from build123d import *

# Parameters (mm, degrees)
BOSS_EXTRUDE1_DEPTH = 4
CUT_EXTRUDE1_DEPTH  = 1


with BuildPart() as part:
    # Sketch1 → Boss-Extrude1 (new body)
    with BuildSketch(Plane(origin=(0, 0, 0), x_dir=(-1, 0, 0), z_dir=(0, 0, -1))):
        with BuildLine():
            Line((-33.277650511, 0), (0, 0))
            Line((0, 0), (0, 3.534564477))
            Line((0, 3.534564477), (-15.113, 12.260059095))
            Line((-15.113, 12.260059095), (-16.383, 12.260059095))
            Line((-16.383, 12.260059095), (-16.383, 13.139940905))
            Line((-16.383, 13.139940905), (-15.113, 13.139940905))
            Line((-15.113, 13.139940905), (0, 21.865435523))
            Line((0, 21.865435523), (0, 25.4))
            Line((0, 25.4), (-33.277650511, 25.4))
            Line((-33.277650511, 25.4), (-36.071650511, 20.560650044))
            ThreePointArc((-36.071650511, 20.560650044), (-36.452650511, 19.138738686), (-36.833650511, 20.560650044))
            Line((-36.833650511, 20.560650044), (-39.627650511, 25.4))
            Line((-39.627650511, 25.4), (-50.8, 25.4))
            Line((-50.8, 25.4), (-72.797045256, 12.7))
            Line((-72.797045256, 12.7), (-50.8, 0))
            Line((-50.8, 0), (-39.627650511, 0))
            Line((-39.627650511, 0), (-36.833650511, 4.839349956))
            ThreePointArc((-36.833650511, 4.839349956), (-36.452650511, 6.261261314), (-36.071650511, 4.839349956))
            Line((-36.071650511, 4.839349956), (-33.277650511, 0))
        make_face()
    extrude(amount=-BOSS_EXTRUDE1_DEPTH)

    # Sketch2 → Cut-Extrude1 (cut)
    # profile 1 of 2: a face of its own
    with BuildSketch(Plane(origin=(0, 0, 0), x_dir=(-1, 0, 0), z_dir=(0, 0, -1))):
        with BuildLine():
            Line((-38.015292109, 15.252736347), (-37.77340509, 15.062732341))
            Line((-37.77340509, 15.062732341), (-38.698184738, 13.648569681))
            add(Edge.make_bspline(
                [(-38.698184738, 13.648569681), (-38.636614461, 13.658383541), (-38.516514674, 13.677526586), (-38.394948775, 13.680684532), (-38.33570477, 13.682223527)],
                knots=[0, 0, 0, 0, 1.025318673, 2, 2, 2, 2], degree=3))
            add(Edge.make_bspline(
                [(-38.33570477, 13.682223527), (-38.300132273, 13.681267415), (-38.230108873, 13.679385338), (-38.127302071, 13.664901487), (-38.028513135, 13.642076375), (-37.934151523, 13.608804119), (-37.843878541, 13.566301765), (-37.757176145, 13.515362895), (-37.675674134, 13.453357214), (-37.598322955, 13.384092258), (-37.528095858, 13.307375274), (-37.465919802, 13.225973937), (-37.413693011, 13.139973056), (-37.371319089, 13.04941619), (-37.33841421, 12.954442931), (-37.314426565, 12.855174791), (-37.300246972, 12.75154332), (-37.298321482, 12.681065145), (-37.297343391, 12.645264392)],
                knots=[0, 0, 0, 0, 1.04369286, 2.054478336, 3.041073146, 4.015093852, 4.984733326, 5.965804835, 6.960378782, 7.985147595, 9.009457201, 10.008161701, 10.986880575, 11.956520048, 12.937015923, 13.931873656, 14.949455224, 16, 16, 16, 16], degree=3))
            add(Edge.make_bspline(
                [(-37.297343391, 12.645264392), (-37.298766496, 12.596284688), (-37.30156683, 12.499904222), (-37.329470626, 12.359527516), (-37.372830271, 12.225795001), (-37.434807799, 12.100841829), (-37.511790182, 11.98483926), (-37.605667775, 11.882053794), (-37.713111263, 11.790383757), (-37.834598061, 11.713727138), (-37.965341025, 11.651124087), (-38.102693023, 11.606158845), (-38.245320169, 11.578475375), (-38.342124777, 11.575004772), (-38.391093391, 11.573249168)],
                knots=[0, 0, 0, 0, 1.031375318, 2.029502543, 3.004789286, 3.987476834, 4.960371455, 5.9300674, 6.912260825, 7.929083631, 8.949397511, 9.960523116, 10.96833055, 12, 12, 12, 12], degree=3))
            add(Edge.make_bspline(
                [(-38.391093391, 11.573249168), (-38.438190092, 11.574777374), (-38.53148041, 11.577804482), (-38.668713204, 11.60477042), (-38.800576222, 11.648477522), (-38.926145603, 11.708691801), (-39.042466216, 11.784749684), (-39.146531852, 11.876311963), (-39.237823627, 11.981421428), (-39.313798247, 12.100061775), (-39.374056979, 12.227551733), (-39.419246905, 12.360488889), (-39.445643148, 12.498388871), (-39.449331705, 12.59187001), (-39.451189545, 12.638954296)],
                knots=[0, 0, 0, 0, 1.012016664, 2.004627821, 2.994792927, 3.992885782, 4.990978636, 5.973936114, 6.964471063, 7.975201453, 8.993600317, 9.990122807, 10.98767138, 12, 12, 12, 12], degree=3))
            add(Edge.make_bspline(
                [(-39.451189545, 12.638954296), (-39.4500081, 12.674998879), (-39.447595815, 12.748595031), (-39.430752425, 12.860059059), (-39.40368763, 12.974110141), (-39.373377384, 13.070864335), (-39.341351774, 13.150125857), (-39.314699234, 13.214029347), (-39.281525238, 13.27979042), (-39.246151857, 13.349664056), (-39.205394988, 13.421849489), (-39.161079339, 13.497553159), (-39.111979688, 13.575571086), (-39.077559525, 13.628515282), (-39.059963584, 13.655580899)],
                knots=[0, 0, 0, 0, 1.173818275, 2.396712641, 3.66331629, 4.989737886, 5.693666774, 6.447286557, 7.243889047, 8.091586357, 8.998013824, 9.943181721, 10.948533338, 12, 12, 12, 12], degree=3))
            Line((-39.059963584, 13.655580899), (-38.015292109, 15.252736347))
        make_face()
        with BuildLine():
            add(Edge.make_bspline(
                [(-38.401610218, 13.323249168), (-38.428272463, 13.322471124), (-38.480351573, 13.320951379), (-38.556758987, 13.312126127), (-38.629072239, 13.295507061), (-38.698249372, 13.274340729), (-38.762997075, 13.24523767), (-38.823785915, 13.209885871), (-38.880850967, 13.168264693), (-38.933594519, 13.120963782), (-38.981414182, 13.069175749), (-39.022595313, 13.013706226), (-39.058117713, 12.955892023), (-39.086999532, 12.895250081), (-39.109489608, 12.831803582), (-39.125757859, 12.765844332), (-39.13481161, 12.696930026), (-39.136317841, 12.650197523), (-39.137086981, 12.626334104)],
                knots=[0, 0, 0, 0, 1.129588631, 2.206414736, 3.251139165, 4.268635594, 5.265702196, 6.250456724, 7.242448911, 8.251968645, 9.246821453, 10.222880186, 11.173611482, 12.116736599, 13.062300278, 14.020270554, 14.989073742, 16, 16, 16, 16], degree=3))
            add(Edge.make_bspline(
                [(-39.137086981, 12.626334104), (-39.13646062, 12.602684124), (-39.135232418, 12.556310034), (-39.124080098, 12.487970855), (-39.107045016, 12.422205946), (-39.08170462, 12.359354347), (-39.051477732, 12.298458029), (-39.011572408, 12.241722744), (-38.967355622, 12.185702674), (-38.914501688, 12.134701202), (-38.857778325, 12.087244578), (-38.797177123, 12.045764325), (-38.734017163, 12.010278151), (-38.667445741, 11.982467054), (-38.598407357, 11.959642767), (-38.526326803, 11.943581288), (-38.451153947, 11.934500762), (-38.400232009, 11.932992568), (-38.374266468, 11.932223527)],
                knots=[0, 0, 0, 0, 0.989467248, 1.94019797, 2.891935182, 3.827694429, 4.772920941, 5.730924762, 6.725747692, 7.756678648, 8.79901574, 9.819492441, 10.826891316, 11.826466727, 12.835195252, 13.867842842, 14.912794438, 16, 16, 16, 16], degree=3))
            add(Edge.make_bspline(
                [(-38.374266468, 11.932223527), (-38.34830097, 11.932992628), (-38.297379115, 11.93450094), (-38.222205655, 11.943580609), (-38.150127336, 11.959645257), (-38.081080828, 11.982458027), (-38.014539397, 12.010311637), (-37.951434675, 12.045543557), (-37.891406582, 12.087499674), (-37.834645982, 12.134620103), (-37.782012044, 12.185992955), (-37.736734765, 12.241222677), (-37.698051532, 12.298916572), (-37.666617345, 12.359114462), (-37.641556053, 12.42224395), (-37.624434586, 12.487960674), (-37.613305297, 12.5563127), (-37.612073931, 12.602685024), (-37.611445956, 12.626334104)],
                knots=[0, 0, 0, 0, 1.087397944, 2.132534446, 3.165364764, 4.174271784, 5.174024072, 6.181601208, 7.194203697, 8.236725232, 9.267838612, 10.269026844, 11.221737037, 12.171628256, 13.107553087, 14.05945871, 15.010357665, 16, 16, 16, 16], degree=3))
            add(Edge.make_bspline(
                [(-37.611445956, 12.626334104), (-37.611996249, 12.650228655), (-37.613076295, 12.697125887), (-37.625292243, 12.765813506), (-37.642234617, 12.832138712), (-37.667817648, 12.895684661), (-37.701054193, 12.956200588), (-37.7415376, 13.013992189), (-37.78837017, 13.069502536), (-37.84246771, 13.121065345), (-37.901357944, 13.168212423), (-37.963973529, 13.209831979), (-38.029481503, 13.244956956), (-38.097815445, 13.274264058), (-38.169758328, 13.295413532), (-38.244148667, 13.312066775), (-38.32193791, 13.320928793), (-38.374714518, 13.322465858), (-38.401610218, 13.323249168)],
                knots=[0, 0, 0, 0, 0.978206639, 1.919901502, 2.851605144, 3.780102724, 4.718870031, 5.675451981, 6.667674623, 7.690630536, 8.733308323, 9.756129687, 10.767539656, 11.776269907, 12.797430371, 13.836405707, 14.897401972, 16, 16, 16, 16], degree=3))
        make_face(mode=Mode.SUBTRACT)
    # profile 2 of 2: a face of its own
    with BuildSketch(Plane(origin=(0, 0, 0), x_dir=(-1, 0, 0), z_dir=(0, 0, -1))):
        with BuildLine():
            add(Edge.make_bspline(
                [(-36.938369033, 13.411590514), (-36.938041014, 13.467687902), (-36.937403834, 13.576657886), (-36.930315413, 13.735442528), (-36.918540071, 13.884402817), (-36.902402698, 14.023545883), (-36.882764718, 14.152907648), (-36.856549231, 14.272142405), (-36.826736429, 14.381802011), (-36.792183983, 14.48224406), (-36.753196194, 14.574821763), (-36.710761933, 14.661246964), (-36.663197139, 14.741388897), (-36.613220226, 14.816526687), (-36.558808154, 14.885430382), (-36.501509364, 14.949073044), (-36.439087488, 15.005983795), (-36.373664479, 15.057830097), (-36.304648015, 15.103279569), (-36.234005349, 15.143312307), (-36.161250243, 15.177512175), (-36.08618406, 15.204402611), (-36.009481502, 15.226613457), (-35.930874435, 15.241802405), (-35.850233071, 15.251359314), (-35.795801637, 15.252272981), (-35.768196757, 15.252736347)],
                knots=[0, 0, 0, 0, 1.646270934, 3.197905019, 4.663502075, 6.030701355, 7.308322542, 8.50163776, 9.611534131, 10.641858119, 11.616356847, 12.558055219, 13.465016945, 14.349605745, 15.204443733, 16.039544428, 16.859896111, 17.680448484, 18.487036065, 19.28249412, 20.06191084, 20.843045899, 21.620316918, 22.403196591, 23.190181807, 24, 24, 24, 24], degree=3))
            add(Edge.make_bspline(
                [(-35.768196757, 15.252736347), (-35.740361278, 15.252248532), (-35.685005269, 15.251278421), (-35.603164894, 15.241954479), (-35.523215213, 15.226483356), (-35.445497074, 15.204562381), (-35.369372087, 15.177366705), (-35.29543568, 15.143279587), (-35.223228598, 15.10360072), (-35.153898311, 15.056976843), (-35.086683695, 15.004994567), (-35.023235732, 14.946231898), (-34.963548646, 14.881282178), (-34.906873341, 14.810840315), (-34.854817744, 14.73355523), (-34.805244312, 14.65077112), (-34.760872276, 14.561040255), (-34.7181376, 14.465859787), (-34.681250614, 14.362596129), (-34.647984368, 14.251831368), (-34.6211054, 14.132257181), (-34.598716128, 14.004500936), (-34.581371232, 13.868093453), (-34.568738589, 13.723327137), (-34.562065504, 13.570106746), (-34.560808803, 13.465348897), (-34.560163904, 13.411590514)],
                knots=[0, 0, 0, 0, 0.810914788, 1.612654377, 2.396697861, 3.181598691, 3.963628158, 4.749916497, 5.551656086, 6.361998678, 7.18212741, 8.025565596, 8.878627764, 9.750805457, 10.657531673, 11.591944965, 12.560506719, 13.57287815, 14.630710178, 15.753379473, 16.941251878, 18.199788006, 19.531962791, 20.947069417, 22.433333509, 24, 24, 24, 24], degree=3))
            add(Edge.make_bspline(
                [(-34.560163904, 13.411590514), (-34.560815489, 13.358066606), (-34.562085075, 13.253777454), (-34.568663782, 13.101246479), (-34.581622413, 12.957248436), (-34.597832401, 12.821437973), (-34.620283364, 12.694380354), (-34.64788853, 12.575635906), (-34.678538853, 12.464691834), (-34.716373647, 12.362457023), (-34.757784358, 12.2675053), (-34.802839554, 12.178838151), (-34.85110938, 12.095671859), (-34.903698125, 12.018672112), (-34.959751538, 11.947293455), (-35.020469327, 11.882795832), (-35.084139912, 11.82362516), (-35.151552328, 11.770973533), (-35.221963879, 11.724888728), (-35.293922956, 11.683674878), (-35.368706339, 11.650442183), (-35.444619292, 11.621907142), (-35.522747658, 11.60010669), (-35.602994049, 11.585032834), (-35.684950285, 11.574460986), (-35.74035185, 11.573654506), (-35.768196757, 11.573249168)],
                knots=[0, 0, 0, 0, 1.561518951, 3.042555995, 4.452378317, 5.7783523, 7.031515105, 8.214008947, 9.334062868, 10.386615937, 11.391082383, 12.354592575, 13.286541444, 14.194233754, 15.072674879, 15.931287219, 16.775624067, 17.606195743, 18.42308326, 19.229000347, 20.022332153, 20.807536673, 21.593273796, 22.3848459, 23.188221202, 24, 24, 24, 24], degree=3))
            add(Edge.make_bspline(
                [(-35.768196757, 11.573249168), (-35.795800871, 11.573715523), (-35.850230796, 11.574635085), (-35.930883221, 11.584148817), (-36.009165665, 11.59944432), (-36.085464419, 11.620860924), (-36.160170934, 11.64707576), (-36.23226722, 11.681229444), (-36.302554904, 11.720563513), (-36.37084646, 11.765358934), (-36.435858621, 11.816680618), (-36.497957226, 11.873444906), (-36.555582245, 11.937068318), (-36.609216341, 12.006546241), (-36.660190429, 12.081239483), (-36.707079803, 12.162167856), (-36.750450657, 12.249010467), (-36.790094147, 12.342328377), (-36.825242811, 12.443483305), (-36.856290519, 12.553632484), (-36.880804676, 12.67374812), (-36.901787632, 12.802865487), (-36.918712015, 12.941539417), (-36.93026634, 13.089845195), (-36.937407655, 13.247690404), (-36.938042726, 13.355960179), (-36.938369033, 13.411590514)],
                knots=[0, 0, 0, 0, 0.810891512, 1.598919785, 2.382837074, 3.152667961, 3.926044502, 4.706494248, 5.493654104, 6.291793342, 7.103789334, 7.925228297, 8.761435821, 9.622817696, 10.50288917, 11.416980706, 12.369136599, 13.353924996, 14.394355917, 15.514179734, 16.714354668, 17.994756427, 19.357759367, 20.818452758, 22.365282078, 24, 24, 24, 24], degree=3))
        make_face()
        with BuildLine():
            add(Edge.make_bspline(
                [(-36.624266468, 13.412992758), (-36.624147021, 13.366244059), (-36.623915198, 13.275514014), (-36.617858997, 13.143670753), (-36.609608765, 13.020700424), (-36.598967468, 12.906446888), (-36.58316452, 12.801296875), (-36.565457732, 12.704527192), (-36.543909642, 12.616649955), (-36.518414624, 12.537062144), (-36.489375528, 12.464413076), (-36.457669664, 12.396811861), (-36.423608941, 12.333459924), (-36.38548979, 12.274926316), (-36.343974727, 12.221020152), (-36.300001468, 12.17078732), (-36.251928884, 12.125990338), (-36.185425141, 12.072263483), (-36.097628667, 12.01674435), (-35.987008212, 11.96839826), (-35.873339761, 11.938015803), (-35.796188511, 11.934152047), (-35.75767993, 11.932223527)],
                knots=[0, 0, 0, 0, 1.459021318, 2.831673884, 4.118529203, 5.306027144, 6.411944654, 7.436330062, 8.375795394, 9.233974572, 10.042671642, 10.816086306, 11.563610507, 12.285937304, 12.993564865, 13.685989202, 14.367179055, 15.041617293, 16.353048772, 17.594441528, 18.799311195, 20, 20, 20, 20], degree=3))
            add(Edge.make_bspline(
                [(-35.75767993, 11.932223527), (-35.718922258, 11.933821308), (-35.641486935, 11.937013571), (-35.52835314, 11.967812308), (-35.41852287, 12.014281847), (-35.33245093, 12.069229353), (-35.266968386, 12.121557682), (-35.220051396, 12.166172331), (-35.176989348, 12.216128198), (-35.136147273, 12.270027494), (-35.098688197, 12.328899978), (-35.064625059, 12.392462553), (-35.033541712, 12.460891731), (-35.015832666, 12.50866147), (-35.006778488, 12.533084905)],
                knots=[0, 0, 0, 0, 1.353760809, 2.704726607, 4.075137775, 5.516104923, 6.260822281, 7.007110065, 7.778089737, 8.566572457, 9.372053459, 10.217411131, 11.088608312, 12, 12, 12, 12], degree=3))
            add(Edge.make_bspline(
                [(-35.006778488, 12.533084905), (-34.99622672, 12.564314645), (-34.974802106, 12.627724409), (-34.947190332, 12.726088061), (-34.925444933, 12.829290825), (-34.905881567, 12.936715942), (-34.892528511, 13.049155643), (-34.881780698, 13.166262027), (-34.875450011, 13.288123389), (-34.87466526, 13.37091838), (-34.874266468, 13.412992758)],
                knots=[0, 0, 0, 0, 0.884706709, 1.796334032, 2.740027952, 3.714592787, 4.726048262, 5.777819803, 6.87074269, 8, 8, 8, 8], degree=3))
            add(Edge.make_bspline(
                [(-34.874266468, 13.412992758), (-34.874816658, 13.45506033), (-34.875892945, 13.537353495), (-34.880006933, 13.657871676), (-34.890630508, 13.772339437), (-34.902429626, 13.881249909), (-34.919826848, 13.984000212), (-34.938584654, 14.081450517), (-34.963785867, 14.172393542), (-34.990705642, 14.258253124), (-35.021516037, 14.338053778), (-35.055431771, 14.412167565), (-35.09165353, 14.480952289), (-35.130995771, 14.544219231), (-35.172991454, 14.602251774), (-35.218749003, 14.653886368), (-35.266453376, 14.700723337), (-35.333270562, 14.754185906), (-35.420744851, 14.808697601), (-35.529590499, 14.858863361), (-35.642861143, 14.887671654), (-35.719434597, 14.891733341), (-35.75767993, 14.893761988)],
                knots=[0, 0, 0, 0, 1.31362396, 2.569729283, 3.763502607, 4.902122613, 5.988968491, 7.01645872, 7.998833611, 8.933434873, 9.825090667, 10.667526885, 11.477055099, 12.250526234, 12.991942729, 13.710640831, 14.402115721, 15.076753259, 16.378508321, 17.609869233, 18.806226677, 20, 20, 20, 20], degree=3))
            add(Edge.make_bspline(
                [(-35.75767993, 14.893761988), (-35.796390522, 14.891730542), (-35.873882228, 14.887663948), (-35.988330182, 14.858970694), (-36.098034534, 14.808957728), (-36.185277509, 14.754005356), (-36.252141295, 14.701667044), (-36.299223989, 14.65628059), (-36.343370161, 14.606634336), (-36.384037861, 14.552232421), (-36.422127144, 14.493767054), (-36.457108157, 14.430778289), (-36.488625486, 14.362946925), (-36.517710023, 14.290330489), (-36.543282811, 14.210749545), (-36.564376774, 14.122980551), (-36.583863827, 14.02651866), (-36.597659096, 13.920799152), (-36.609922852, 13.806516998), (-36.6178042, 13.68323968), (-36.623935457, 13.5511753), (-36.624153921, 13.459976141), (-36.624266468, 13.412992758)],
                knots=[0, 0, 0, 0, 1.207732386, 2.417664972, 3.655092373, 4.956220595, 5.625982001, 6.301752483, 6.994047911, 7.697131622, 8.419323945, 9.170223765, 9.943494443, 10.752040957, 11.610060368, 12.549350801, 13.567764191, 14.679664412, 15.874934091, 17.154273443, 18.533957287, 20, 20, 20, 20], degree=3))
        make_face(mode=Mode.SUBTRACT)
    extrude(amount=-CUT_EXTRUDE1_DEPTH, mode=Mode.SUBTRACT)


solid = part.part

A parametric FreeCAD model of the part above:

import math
import FreeCAD as App
import Part
import Sketcher
Q = App.Units.Quantity

doc = App.newDocument("Part")
body = doc.addObject("PartDesign::Body", "Body")

# Sketch on XY plane
sketch1 = doc.addObject("Sketcher::SketchObject", "Sketch")
body.addObject(sketch1)
sketch1.AttachmentSupport = (doc.XY_Plane, [""])
sketch1.MapMode = "FlatFace"
sketch1.addGeometry(Part.LineSegment(App.Vector(33.3, 0, 0), App.Vector(0, 0, 0)), False)
sketch1.addGeometry(Part.LineSegment(App.Vector(0, 0, 0), App.Vector(0, 3.5, 0)), False)
sketch1.addGeometry(Part.LineSegment(App.Vector(0, 3.5, 0), App.Vector(15.1, 12.3, 0)), False)
sketch1.addGeometry(Part.LineSegment(App.Vector(15.1, 12.3, 0), App.Vector(16.4, 12.3, 0)), False)
sketch1.addGeometry(Part.LineSegment(App.Vector(16.4, 12.3, 0), App.Vector(16.4, 13.1, 0)), False)
sketch1.addGeometry(Part.LineSegment(App.Vector(16.4, 13.1, 0), App.Vector(15.1, 13.1, 0)), False)
sketch1.addGeometry(Part.LineSegment(App.Vector(15.1, 13.1, 0), App.Vector(0, 21.9, 0)), False)
sketch1.addGeometry(Part.LineSegment(App.Vector(0, 21.9, 0), App.Vector(0, 25.4, 0)), False)
sketch1.addGeometry(Part.LineSegment(App.Vector(0, 25.4, 0), App.Vector(33.3, 25.4, 0)), False)
sketch1.addGeometry(Part.LineSegment(App.Vector(33.3, 25.4, 0), App.Vector(36.1, 20.6, 0)), False)
sketch1.addGeometry(Part.ArcOfCircle(Part.Circle(App.Vector(36.5, 19.9, 0), App.Vector(0, 0, 1), 0.8), math.radians(120), math.radians(420)), False)
sketch1.addGeometry(Part.LineSegment(App.Vector(36.8, 20.6, 0), App.Vector(39.6, 25.4, 0)), False)
sketch1.addGeometry(Part.LineSegment(App.Vector(39.6, 25.4, 0), App.Vector(50.8, 25.4, 0)), False)
sketch1.addGeometry(Part.LineSegment(App.Vector(50.8, 25.4, 0), App.Vector(72.8, 12.7, 0)), False)
sketch1.addGeometry(Part.LineSegment(App.Vector(72.8, 12.7, 0), App.Vector(50.8, 0, 0)), False)
sketch1.addGeometry(Part.LineSegment(App.Vector(50.8, 0, 0), App.Vector(39.6, 0, 0)), False)
sketch1.addGeometry(Part.LineSegment(App.Vector(39.6, 0, 0), App.Vector(36.8, 4.8, 0)), False)
sketch1.addGeometry(Part.ArcOfCircle(Part.Circle(App.Vector(36.5, 5.5, 0), App.Vector(0, 0, 1), 0.8), math.radians(-60), math.radians(240)), False)
sketch1.addGeometry(Part.LineSegment(App.Vector(36.1, 4.8, 0), App.Vector(33.3, 0, 0)), False)
sketch1.addConstraint(Sketcher.Constraint("Coincident", 0, 2, 1, 1))
sketch1.addConstraint(Sketcher.Constraint("Coincident", 1, 2, 2, 1))
sketch1.addConstraint(Sketcher.Constraint("Coincident", 2, 2, 3, 1))
sketch1.addConstraint(Sketcher.Constraint("Coincident", 3, 2, 4, 1))
sketch1.addConstraint(Sketcher.Constraint("Coincident", 4, 2, 5, 1))
sketch1.addConstraint(Sketcher.Constraint("Coincident", 5, 2, 6, 1))
sketch1.addConstraint(Sketcher.Constraint("Coincident", 6, 2, 7, 1))
sketch1.addConstraint(Sketcher.Constraint("Coincident", 7, 2, 8, 1))
sketch1.addConstraint(Sketcher.Constraint("Coincident", 8, 2, 9, 1))
sketch1.addConstraint(Sketcher.Constraint("Coincident", 9, 2, 10, 1))
sketch1.addConstraint(Sketcher.Constraint("Coincident", 10, 2, 11, 1))
sketch1.addConstraint(Sketcher.Constraint("Coincident", 11, 2, 12, 1))
sketch1.addConstraint(Sketcher.Constraint("Coincident", 12, 2, 13, 1))
sketch1.addConstraint(Sketcher.Constraint("Coincident", 13, 2, 14, 1))
sketch1.addConstraint(Sketcher.Constraint("Coincident", 14, 2, 15, 1))
sketch1.addConstraint(Sketcher.Constraint("Coincident", 15, 2, 16, 1))
sketch1.addConstraint(Sketcher.Constraint("Coincident", 16, 2, 17, 1))
sketch1.addConstraint(Sketcher.Constraint("Coincident", 17, 2, 18, 1))
sketch1.addConstraint(Sketcher.Constraint("Coincident", 18, 2, 0, 1))
sketch1.addConstraint(Sketcher.Constraint("Horizontal", 0))
sketch1.addConstraint(Sketcher.Constraint("Vertical", 1))
sketch1.addConstraint(Sketcher.Constraint("Horizontal", 3))
sketch1.addConstraint(Sketcher.Constraint("Vertical", 4))
sketch1.addConstraint(Sketcher.Constraint("Horizontal", 5))
sketch1.addConstraint(Sketcher.Constraint("Vertical", 7))
sketch1.addConstraint(Sketcher.Constraint("Horizontal", 8))
sketch1.addConstraint(Sketcher.Constraint("Horizontal", 12))
sketch1.addConstraint(Sketcher.Constraint("Horizontal", 15))
sketch1.addConstraint(Sketcher.Constraint("Coincident", 0, 2, -1, 1))
sketch1.addConstraint(Sketcher.Constraint("Equal", 10, 17))
sketch1.addConstraint(Sketcher.Constraint("PointOnObject", 6, 2, -2))
sketch1.addConstraint(Sketcher.Constraint("PointOnObject", 14, 2, -1))
sketch1.addConstraint(Sketcher.Constraint("Perpendicular", 2, 9))
sketch1.addConstraint(Sketcher.Constraint("Perpendicular", 6, 11))
sketch1.addConstraint(Sketcher.Constraint("Perpendicular", 11, 13))
sketch1.addConstraint(Sketcher.Constraint("Perpendicular", 9, 14))
sketch1.addConstraint(Sketcher.Constraint("Perpendicular", 14, 16))
sketch1.addConstraint(Sketcher.Constraint("Perpendicular", 13, 18))
sketch1.addConstraint(Sketcher.Constraint("Horizontal", 9, 2, 10, 2))
sketch1.addConstraint(Sketcher.Constraint("Horizontal", 8, 2, 11, 2))
sketch1.addConstraint(Sketcher.Constraint("Horizontal", 16, 2, 17, 2))
sketch1.addConstraint(Sketcher.Constraint("Vertical", 10, 3, 17, 3))
sketch1.addConstraint(Sketcher.Constraint("Vertical", 2, 2, 5, 2))
sketch1.addConstraint(Sketcher.Constraint("Vertical", 12, 2, 14, 2))
sketch1.addConstraint(Sketcher.Constraint("Vertical", 11, 2, 15, 2))
sketch1.addConstraint(Sketcher.Constraint("Vertical", 10, 2, 16, 2))
sketch1.addConstraint(Sketcher.Constraint("Vertical", 8, 2, 18, 2))
sketch1.addConstraint(Sketcher.Constraint("Equal", 1, 7))
sketch1.addConstraint(Sketcher.Constraint("Radius", 10, Q("0.03 in")))
sketch1.addConstraint(Sketcher.Constraint("Distance", 13, Q("1 in")))
sketch1.addConstraint(Sketcher.Constraint("DistanceY", -1, 1, 7, 2, Q("1 in")))
sketch1.addConstraint(Sketcher.Constraint("DistanceX", -1, 1, 12, 2, Q("2 in")))
sketch1.addConstraint(Sketcher.Constraint("DistanceX", 3, 1, 3, 2, Q("0.05 in")))
sketch1.addConstraint(Sketcher.Constraint("Distance", 9, Q("0.22 in")))
sketch1.addConstraint(Sketcher.Constraint("DistanceX", 9, 2, 10, 2, Q("0.03 in")))
sketch1.addConstraint(Sketcher.Constraint("DistanceX", -1, 1, 2, 2, Q("0.595 in")))
sketch1.addConstraint(Sketcher.Constraint("DistanceX", 0, 2, 0, 1, 33.277651))
sketch1.addConstraint(Sketcher.Constraint("DistanceY", 4, 1, 4, 2, 0.879882))
pad1 = doc.addObject("PartDesign::Pad", "Pad")
body.addObject(pad1)
pad1.Profile = sketch1
pad1.Length = 4

# Sketch on XY plane
sketch2 = doc.addObject("Sketcher::SketchObject", "Sketch001")
body.addObject(sketch2)
sketch2.AttachmentSupport = (doc.XY_Plane, [""])
sketch2.MapMode = "FlatFace"
sketch2.addGeometry(Part.LineSegment(App.Vector(37.773405, 15.062732, 0), App.Vector(38.015292, 15.252736, 0)), False)
sketch2.addGeometry(Part.LineSegment(App.Vector(38.015292, 15.252736, 0), App.Vector(39.059964, 13.655581, 0)), False)
sketch2.addGeometry(Part.BSplineCurve([App.Vector(39.45119, 12.638954, 0), App.Vector(39.450008, 12.674999, 0), App.Vector(39.447596, 12.748595, 0), App.Vector(39.430752, 12.860059, 0), App.Vector(39.403688, 12.97411, 0), App.Vector(39.373377, 13.070864, 0), App.Vector(39.341352, 13.150126, 0), App.Vector(39.314699, 13.214029, 0), App.Vector(39.281525, 13.27979, 0), App.Vector(39.246152, 13.349664, 0), App.Vector(39.205395, 13.421849, 0), App.Vector(39.161079, 13.497553, 0), App.Vector(39.11198, 13.575571, 0), App.Vector(39.07756, 13.628515, 0), App.Vector(39.059964, 13.655581, 0)], [4, 1, 1, 1, 1, 1, 1, 1, 1, 1, 1, 1, 4], [0, 1.173818275, 2.396712641, 3.66331629, 4.989737886, 5.693666774, 6.447286557, 7.243889047, 8.091586357, 8.998013824, 9.943181721, 10.948533338, 12], False, 3, [1, 1, 1, 1, 1, 1, 1, 1, 1, 1, 1, 1, 1, 1, 1], False), False)
sketch2.addGeometry(Part.BSplineCurve([App.Vector(38.391093, 11.573249, 0), App.Vector(38.43819, 11.574777, 0), App.Vector(38.53148, 11.577804, 0), App.Vector(38.668713, 11.60477, 0), App.Vector(38.800576, 11.648478, 0), App.Vector(38.926146, 11.708692, 0), App.Vector(39.042466, 11.78475, 0), App.Vector(39.146532, 11.876312, 0), App.Vector(39.237824, 11.981421, 0), App.Vector(39.313798, 12.100062, 0), App.Vector(39.374057, 12.227552, 0), App.Vector(39.419247, 12.360489, 0), App.Vector(39.445643, 12.498389, 0), App.Vector(39.449332, 12.59187, 0), App.Vector(39.45119, 12.638954, 0)], [4, 1, 1, 1, 1, 1, 1, 1, 1, 1, 1, 1, 4], [0, 1.012016664, 2.004627821, 2.994792927, 3.992885782, 4.990978636, 5.973936114, 6.964471063, 7.975201453, 8.993600317, 9.990122807, 10.98767138, 12], False, 3, [1, 1, 1, 1, 1, 1, 1, 1, 1, 1, 1, 1, 1, 1, 1], False), False)
sketch2.addGeometry(Part.BSplineCurve([App.Vector(37.297343, 12.645264, 0), App.Vector(37.298766, 12.596285, 0), App.Vector(37.301567, 12.499904, 0), App.Vector(37.329471, 12.359528, 0), App.Vector(37.37283, 12.225795, 0), App.Vector(37.434808, 12.100842, 0), App.Vector(37.51179, 11.984839, 0), App.Vector(37.605668, 11.882054, 0), App.Vector(37.713111, 11.790384, 0), App.Vector(37.834598, 11.713727, 0), App.Vector(37.965341, 11.651124, 0), App.Vector(38.102693, 11.606159, 0), App.Vector(38.24532, 11.578475, 0), App.Vector(38.342125, 11.575005, 0), App.Vector(38.391093, 11.573249, 0)], [4, 1, 1, 1, 1, 1, 1, 1, 1, 1, 1, 1, 4], [0, 1.031375318, 2.029502543, 3.004789286, 3.987476834, 4.960371455, 5.9300674, 6.912260825, 7.929083631, 8.949397511, 9.960523116, 10.96833055, 12], False, 3, [1, 1, 1, 1, 1, 1, 1, 1, 1, 1, 1, 1, 1, 1, 1], False), False)
sketch2.addGeometry(Part.BSplineCurve([App.Vector(38.335705, 13.682224, 0), App.Vector(38.300132, 13.681267, 0), App.Vector(38.230109, 13.679385, 0), App.Vector(38.127302, 13.664901, 0), App.Vector(38.028513, 13.642076, 0), App.Vector(37.934152, 13.608804, 0), App.Vector(37.843879, 13.566302, 0), App.Vector(37.757176, 13.515363, 0), App.Vector(37.675674, 13.453357, 0), App.Vector(37.598323, 13.384092, 0), App.Vector(37.528096, 13.307375, 0), App.Vector(37.46592, 13.225974, 0), App.Vector(37.413693, 13.139973, 0), App.Vector(37.371319, 13.049416, 0), App.Vector(37.338414, 12.954443, 0), App.Vector(37.314427, 12.855175, 0), App.Vector(37.300247, 12.751543, 0), App.Vector(37.298321, 12.681065, 0), App.Vector(37.297343, 12.645264, 0)], [4, 1, 1, 1, 1, 1, 1, 1, 1, 1, 1, 1, 1, 1, 1, 1, 4], [0, 1.04369286, 2.054478336, 3.041073146, 4.015093852, 4.984733326, 5.965804835, 6.960378782, 7.985147595, 9.009457201, 10.008161701, 10.986880575, 11.956520048, 12.937015923, 13.931873656, 14.949455224, 16], False, 3, [1, 1, 1, 1, 1, 1, 1, 1, 1, 1, 1, 1, 1, 1, 1, 1, 1, 1, 1], False), False)
sketch2.addGeometry(Part.BSplineCurve([App.Vector(38.698185, 13.64857, 0), App.Vector(38.636614, 13.658384, 0), App.Vector(38.516515, 13.677527, 0), App.Vector(38.394949, 13.680685, 0), App.Vector(38.335705, 13.682224, 0)], [4, 1, 4], [0, 1.025318673, 2], False, 3, [1, 1, 1, 1, 1], False), False)
sketch2.addGeometry(Part.LineSegment(App.Vector(38.698185, 13.64857, 0), App.Vector(37.773405, 15.062732, 0)), False)
sketch2.addGeometry(Part.BSplineCurve([App.Vector(37.611446, 12.626334, 0), App.Vector(37.611996, 12.650229, 0), App.Vector(37.613076, 12.697126, 0), App.Vector(37.625292, 12.765814, 0), App.Vector(37.642235, 12.832139, 0), App.Vector(37.667818, 12.895685, 0), App.Vector(37.701054, 12.956201, 0), App.Vector(37.741538, 13.013992, 0), App.Vector(37.78837, 13.069503, 0), App.Vector(37.842468, 13.121065, 0), App.Vector(37.901358, 13.168212, 0), App.Vector(37.963974, 13.209832, 0), App.Vector(38.029482, 13.244957, 0), App.Vector(38.097815, 13.274264, 0), App.Vector(38.169758, 13.295414, 0), App.Vector(38.244149, 13.312067, 0), App.Vector(38.321938, 13.320929, 0), App.Vector(38.374715, 13.322466, 0), App.Vector(38.40161, 13.323249, 0)], [4, 1, 1, 1, 1, 1, 1, 1, 1, 1, 1, 1, 1, 1, 1, 1, 4], [0, 0.978206639, 1.919901502, 2.851605144, 3.780102724, 4.718870031, 5.675451981, 6.667674623, 7.690630536, 8.733308323, 9.756129687, 10.767539656, 11.776269907, 12.797430371, 13.836405707, 14.897401972, 16], False, 3, [1, 1, 1, 1, 1, 1, 1, 1, 1, 1, 1, 1, 1, 1, 1, 1, 1, 1, 1], False), False)
sketch2.addGeometry(Part.BSplineCurve([App.Vector(38.374266, 11.932224, 0), App.Vector(38.348301, 11.932993, 0), App.Vector(38.297379, 11.934501, 0), App.Vector(38.222206, 11.943581, 0), App.Vector(38.150127, 11.959645, 0), App.Vector(38.081081, 11.982458, 0), App.Vector(38.014539, 12.010312, 0), App.Vector(37.951435, 12.045544, 0), App.Vector(37.891407, 12.0875, 0), App.Vector(37.834646, 12.13462, 0), App.Vector(37.782012, 12.185993, 0), App.Vector(37.736735, 12.241223, 0), App.Vector(37.698052, 12.298917, 0), App.Vector(37.666617, 12.359114, 0), App.Vector(37.641556, 12.422244, 0), App.Vector(37.624435, 12.487961, 0), App.Vector(37.613305, 12.556313, 0), App.Vector(37.612074, 12.602685, 0), App.Vector(37.611446, 12.626334, 0)], [4, 1, 1, 1, 1, 1, 1, 1, 1, 1, 1, 1, 1, 1, 1, 1, 4], [0, 1.087397944, 2.132534446, 3.165364764, 4.174271784, 5.174024072, 6.181601208, 7.194203697, 8.236725232, 9.267838612, 10.269026844, 11.221737037, 12.171628256, 13.107553087, 14.05945871, 15.010357665, 16], False, 3, [1, 1, 1, 1, 1, 1, 1, 1, 1, 1, 1, 1, 1, 1, 1, 1, 1, 1, 1], False), False)
sketch2.addGeometry(Part.BSplineCurve([App.Vector(39.137087, 12.626334, 0), App.Vector(39.136461, 12.602684, 0), App.Vector(39.135232, 12.55631, 0), App.Vector(39.12408, 12.487971, 0), App.Vector(39.107045, 12.422206, 0), App.Vector(39.081705, 12.359354, 0), App.Vector(39.051478, 12.298458, 0), App.Vector(39.011572, 12.241723, 0), App.Vector(38.967356, 12.185703, 0), App.Vector(38.914502, 12.134701, 0), App.Vector(38.857778, 12.087245, 0), App.Vector(38.797177, 12.045764, 0), App.Vector(38.734017, 12.010278, 0), App.Vector(38.667446, 11.982467, 0), App.Vector(38.598407, 11.959643, 0), App.Vector(38.526327, 11.943581, 0), App.Vector(38.451154, 11.934501, 0), App.Vector(38.400232, 11.932993, 0), App.Vector(38.374266, 11.932224, 0)], [4, 1, 1, 1, 1, 1, 1, 1, 1, 1, 1, 1, 1, 1, 1, 1, 4], [0, 0.989467248, 1.94019797, 2.891935182, 3.827694429, 4.772920941, 5.730924762, 6.725747692, 7.756678648, 8.79901574, 9.819492441, 10.826891316, 11.826466727, 12.835195252, 13.867842842, 14.912794438, 16], False, 3, [1, 1, 1, 1, 1, 1, 1, 1, 1, 1, 1, 1, 1, 1, 1, 1, 1, 1, 1], False), False)
sketch2.addGeometry(Part.BSplineCurve([App.Vector(38.40161, 13.323249, 0), App.Vector(38.428272, 13.322471, 0), App.Vector(38.480352, 13.320951, 0), App.Vector(38.556759, 13.312126, 0), App.Vector(38.629072, 13.295507, 0), App.Vector(38.698249, 13.274341, 0), App.Vector(38.762997, 13.245238, 0), App.Vector(38.823786, 13.209886, 0), App.Vector(38.880851, 13.168265, 0), App.Vector(38.933595, 13.120964, 0), App.Vector(38.981414, 13.069176, 0), App.Vector(39.022595, 13.013706, 0), App.Vector(39.058118, 12.955892, 0), App.Vector(39.087, 12.89525, 0), App.Vector(39.10949, 12.831804, 0), App.Vector(39.125758, 12.765844, 0), App.Vector(39.134812, 12.69693, 0), App.Vector(39.136318, 12.650198, 0), App.Vector(39.137087, 12.626334, 0)], [4, 1, 1, 1, 1, 1, 1, 1, 1, 1, 1, 1, 1, 1, 1, 1, 4], [0, 1.129588631, 2.206414736, 3.251139165, 4.268635594, 5.265702196, 6.250456724, 7.242448911, 8.251968645, 9.246821453, 10.222880186, 11.173611482, 12.116736599, 13.062300278, 14.020270554, 14.989073742, 16], False, 3, [1, 1, 1, 1, 1, 1, 1, 1, 1, 1, 1, 1, 1, 1, 1, 1, 1, 1, 1], False), False)
sketch2.addGeometry(Part.BSplineCurve([App.Vector(36.938369, 13.411591, 0), App.Vector(36.938041, 13.467688, 0), App.Vector(36.937404, 13.576658, 0), App.Vector(36.930315, 13.735443, 0), App.Vector(36.91854, 13.884403, 0), App.Vector(36.902403, 14.023546, 0), App.Vector(36.882765, 14.152908, 0), App.Vector(36.856549, 14.272142, 0), App.Vector(36.826736, 14.381802, 0), App.Vector(36.792184, 14.482244, 0), App.Vector(36.753196, 14.574822, 0), App.Vector(36.710762, 14.661247, 0), App.Vector(36.663197, 14.741389, 0), App.Vector(36.61322, 14.816527, 0), App.Vector(36.558808, 14.88543, 0), App.Vector(36.501509, 14.949073, 0), App.Vector(36.439087, 15.005984, 0), App.Vector(36.373664, 15.05783, 0), App.Vector(36.304648, 15.10328, 0), App.Vector(36.234005, 15.143312, 0), App.Vector(36.16125, 15.177512, 0), App.Vector(36.086184, 15.204403, 0), App.Vector(36.009482, 15.226613, 0), App.Vector(35.930874, 15.241802, 0), App.Vector(35.850233, 15.251359, 0), App.Vector(35.795802, 15.252273, 0), App.Vector(35.768197, 15.252736, 0)], [4, 1, 1, 1, 1, 1, 1, 1, 1, 1, 1, 1, 1, 1, 1, 1, 1, 1, 1, 1, 1, 1, 1, 1, 4], [0, 1.646270934, 3.197905019, 4.663502075, 6.030701355, 7.308322542, 8.50163776, 9.611534131, 10.641858119, 11.616356847, 12.558055219, 13.465016945, 14.349605745, 15.204443733, 16.039544428, 16.859896111, 17.680448484, 18.487036065, 19.28249412, 20.06191084, 20.843045899, 21.620316918, 22.403196591, 23.190181807, 24], False, 3, [1, 1, 1, 1, 1, 1, 1, 1, 1, 1, 1, 1, 1, 1, 1, 1, 1, 1, 1, 1, 1, 1, 1, 1, 1, 1, 1], False), False)
sketch2.addGeometry(Part.BSplineCurve([App.Vector(35.768197, 11.573249, 0), App.Vector(35.795801, 11.573716, 0), App.Vector(35.850231, 11.574635, 0), App.Vector(35.930883, 11.584149, 0), App.Vector(36.009166, 11.599444, 0), App.Vector(36.085464, 11.620861, 0), App.Vector(36.160171, 11.647076, 0), App.Vector(36.232267, 11.681229, 0), App.Vector(36.302555, 11.720564, 0), App.Vector(36.370846, 11.765359, 0), App.Vector(36.435859, 11.816681, 0), App.Vector(36.497957, 11.873445, 0), App.Vector(36.555582, 11.937068, 0), App.Vector(36.609216, 12.006546, 0), App.Vector(36.66019, 12.081239, 0), App.Vector(36.70708, 12.162168, 0), App.Vector(36.750451, 12.24901, 0), App.Vector(36.790094, 12.342328, 0), App.Vector(36.825243, 12.443483, 0), App.Vector(36.856291, 12.553632, 0), App.Vector(36.880805, 12.673748, 0), App.Vector(36.901788, 12.802865, 0), App.Vector(36.918712, 12.941539, 0), App.Vector(36.930266, 13.089845, 0), App.Vector(36.937408, 13.24769, 0), App.Vector(36.938043, 13.35596, 0), App.Vector(36.938369, 13.411591, 0)], [4, 1, 1, 1, 1, 1, 1, 1, 1, 1, 1, 1, 1, 1, 1, 1, 1, 1, 1, 1, 1, 1, 1, 1, 4], [0, 0.810891512, 1.598919785, 2.382837074, 3.152667961, 3.926044502, 4.706494248, 5.493654104, 6.291793342, 7.103789334, 7.925228297, 8.761435821, 9.622817696, 10.50288917, 11.416980706, 12.369136599, 13.353924996, 14.394355917, 15.514179734, 16.714354668, 17.994756427, 19.357759367, 20.818452758, 22.365282078, 24], False, 3, [1, 1, 1, 1, 1, 1, 1, 1, 1, 1, 1, 1, 1, 1, 1, 1, 1, 1, 1, 1, 1, 1, 1, 1, 1, 1, 1], False), False)
sketch2.addGeometry(Part.BSplineCurve([App.Vector(34.560164, 13.411591, 0), App.Vector(34.560815, 13.358067, 0), App.Vector(34.562085, 13.253777, 0), App.Vector(34.568664, 13.101246, 0), App.Vector(34.581622, 12.957248, 0), App.Vector(34.597832, 12.821438, 0), App.Vector(34.620283, 12.69438, 0), App.Vector(34.647889, 12.575636, 0), App.Vector(34.678539, 12.464692, 0), App.Vector(34.716374, 12.362457, 0), App.Vector(34.757784, 12.267505, 0), App.Vector(34.80284, 12.178838, 0), App.Vector(34.851109, 12.095672, 0), App.Vector(34.903698, 12.018672, 0), App.Vector(34.959752, 11.947293, 0), App.Vector(35.020469, 11.882796, 0), App.Vector(35.08414, 11.823625, 0), App.Vector(35.151552, 11.770974, 0), App.Vector(35.221964, 11.724889, 0), App.Vector(35.293923, 11.683675, 0), App.Vector(35.368706, 11.650442, 0), App.Vector(35.444619, 11.621907, 0), App.Vector(35.522748, 11.600107, 0), App.Vector(35.602994, 11.585033, 0), App.Vector(35.68495, 11.574461, 0), App.Vector(35.740352, 11.573655, 0), App.Vector(35.768197, 11.573249, 0)], [4, 1, 1, 1, 1, 1, 1, 1, 1, 1, 1, 1, 1, 1, 1, 1, 1, 1, 1, 1, 1, 1, 1, 1, 4], [0, 1.561518951, 3.042555995, 4.452378317, 5.7783523, 7.031515105, 8.214008947, 9.334062868, 10.386615937, 11.391082383, 12.354592575, 13.286541444, 14.194233754, 15.072674879, 15.931287219, 16.775624067, 17.606195743, 18.42308326, 19.229000347, 20.022332153, 20.807536673, 21.593273796, 22.3848459, 23.188221202, 24], False, 3, [1, 1, 1, 1, 1, 1, 1, 1, 1, 1, 1, 1, 1, 1, 1, 1, 1, 1, 1, 1, 1, 1, 1, 1, 1, 1, 1], False), False)
sketch2.addGeometry(Part.BSplineCurve([App.Vector(35.768197, 15.252736, 0), App.Vector(35.740361, 15.252249, 0), App.Vector(35.685005, 15.251278, 0), App.Vector(35.603165, 15.241954, 0), App.Vector(35.523215, 15.226483, 0), App.Vector(35.445497, 15.204562, 0), App.Vector(35.369372, 15.177367, 0), App.Vector(35.295436, 15.14328, 0), App.Vector(35.223229, 15.103601, 0), App.Vector(35.153898, 15.056977, 0), App.Vector(35.086684, 15.004995, 0), App.Vector(35.023236, 14.946232, 0), App.Vector(34.963549, 14.881282, 0), App.Vector(34.906873, 14.81084, 0), App.Vector(34.854818, 14.733555, 0), App.Vector(34.805244, 14.650771, 0), App.Vector(34.760872, 14.56104, 0), App.Vector(34.718138, 14.46586, 0), App.Vector(34.681251, 14.362596, 0), App.Vector(34.647984, 14.251831, 0), App.Vector(34.621105, 14.132257, 0), App.Vector(34.598716, 14.004501, 0), App.Vector(34.581371, 13.868093, 0), App.Vector(34.568739, 13.723327, 0), App.Vector(34.562066, 13.570107, 0), App.Vector(34.560809, 13.465349, 0), App.Vector(34.560164, 13.411591, 0)], [4, 1, 1, 1, 1, 1, 1, 1, 1, 1, 1, 1, 1, 1, 1, 1, 1, 1, 1, 1, 1, 1, 1, 1, 4], [0, 0.810914788, 1.612654377, 2.396697861, 3.181598691, 3.963628158, 4.749916497, 5.551656086, 6.361998678, 7.18212741, 8.025565596, 8.878627764, 9.750805457, 10.657531673, 11.591944965, 12.560506719, 13.57287815, 14.630710178, 15.753379473, 16.941251878, 18.199788006, 19.531962791, 20.947069417, 22.433333509, 24], False, 3, [1, 1, 1, 1, 1, 1, 1, 1, 1, 1, 1, 1, 1, 1, 1, 1, 1, 1, 1, 1, 1, 1, 1, 1, 1, 1, 1], False), False)
sketch2.addGeometry(Part.BSplineCurve([App.Vector(35.75768, 14.893762, 0), App.Vector(35.796391, 14.891731, 0), App.Vector(35.873882, 14.887664, 0), App.Vector(35.98833, 14.858971, 0), App.Vector(36.098035, 14.808958, 0), App.Vector(36.185278, 14.754005, 0), App.Vector(36.252141, 14.701667, 0), App.Vector(36.299224, 14.656281, 0), App.Vector(36.34337, 14.606634, 0), App.Vector(36.384038, 14.552232, 0), App.Vector(36.422127, 14.493767, 0), App.Vector(36.457108, 14.430778, 0), App.Vector(36.488625, 14.362947, 0), App.Vector(36.51771, 14.29033, 0), App.Vector(36.543283, 14.21075, 0), App.Vector(36.564377, 14.122981, 0), App.Vector(36.583864, 14.026519, 0), App.Vector(36.597659, 13.920799, 0), App.Vector(36.609923, 13.806517, 0), App.Vector(36.617804, 13.68324, 0), App.Vector(36.623935, 13.551175, 0), App.Vector(36.624154, 13.459976, 0), App.Vector(36.624266, 13.412993, 0)], [4, 1, 1, 1, 1, 1, 1, 1, 1, 1, 1, 1, 1, 1, 1, 1, 1, 1, 1, 1, 4], [0, 1.207732386, 2.417664972, 3.655092373, 4.956220595, 5.625982001, 6.301752483, 6.994047911, 7.697131622, 8.419323945, 9.170223765, 9.943494443, 10.752040957, 11.610060368, 12.549350801, 13.567764191, 14.679664412, 15.874934091, 17.154273443, 18.533957287, 20], False, 3, [1, 1, 1, 1, 1, 1, 1, 1, 1, 1, 1, 1, 1, 1, 1, 1, 1, 1, 1, 1, 1, 1, 1], False), False)
sketch2.addGeometry(Part.BSplineCurve([App.Vector(34.874266, 13.412993, 0), App.Vector(34.874817, 13.45506, 0), App.Vector(34.875893, 13.537353, 0), App.Vector(34.880007, 13.657872, 0), App.Vector(34.890631, 13.772339, 0), App.Vector(34.90243, 13.88125, 0), App.Vector(34.919827, 13.984, 0), App.Vector(34.938585, 14.081451, 0), App.Vector(34.963786, 14.172394, 0), App.Vector(34.990706, 14.258253, 0), App.Vector(35.021516, 14.338054, 0), App.Vector(35.055432, 14.412168, 0), App.Vector(35.091654, 14.480952, 0), App.Vector(35.130996, 14.544219, 0), App.Vector(35.172991, 14.602252, 0), App.Vector(35.218749, 14.653886, 0), App.Vector(35.266453, 14.700723, 0), App.Vector(35.333271, 14.754186, 0), App.Vector(35.420745, 14.808698, 0), App.Vector(35.52959, 14.858863, 0), App.Vector(35.642861, 14.887672, 0), App.Vector(35.719435, 14.891733, 0), App.Vector(35.75768, 14.893762, 0)], [4, 1, 1, 1, 1, 1, 1, 1, 1, 1, 1, 1, 1, 1, 1, 1, 1, 1, 1, 1, 4], [0, 1.31362396, 2.569729283, 3.763502607, 4.902122613, 5.988968491, 7.01645872, 7.998833611, 8.933434873, 9.825090667, 10.667526885, 11.477055099, 12.250526234, 12.991942729, 13.710640831, 14.402115721, 15.076753259, 16.378508321, 17.609869233, 18.806226677, 20], False, 3, [1, 1, 1, 1, 1, 1, 1, 1, 1, 1, 1, 1, 1, 1, 1, 1, 1, 1, 1, 1, 1, 1, 1], False), False)
sketch2.addGeometry(Part.BSplineCurve([App.Vector(35.006778, 12.533085, 0), App.Vector(34.996227, 12.564315, 0), App.Vector(34.974802, 12.627724, 0), App.Vector(34.94719, 12.726088, 0), App.Vector(34.925445, 12.829291, 0), App.Vector(34.905882, 12.936716, 0), App.Vector(34.892529, 13.049156, 0), App.Vector(34.881781, 13.166262, 0), App.Vector(34.87545, 13.288123, 0), App.Vector(34.874665, 13.370918, 0), App.Vector(34.874266, 13.412993, 0)], [4, 1, 1, 1, 1, 1, 1, 1, 4], [0, 0.884706709, 1.796334032, 2.740027952, 3.714592787, 4.726048262, 5.777819803, 6.87074269, 8], False, 3, [1, 1, 1, 1, 1, 1, 1, 1, 1, 1, 1], False), False)
sketch2.addGeometry(Part.BSplineCurve([App.Vector(35.75768, 11.932224, 0), App.Vector(35.718922, 11.933821, 0), App.Vector(35.641487, 11.937014, 0), App.Vector(35.528353, 11.967812, 0), App.Vector(35.418523, 12.014282, 0), App.Vector(35.332451, 12.069229, 0), App.Vector(35.266968, 12.121558, 0), App.Vector(35.220051, 12.166172, 0), App.Vector(35.176989, 12.216128, 0), App.Vector(35.136147, 12.270027, 0), App.Vector(35.098688, 12.3289, 0), App.Vector(35.064625, 12.392463, 0), App.Vector(35.033542, 12.460892, 0), App.Vector(35.015833, 12.508661, 0), App.Vector(35.006778, 12.533085, 0)], [4, 1, 1, 1, 1, 1, 1, 1, 1, 1, 1, 1, 4], [0, 1.353760809, 2.704726607, 4.075137775, 5.516104923, 6.260822281, 7.007110065, 7.778089737, 8.566572457, 9.372053459, 10.217411131, 11.088608312, 12], False, 3, [1, 1, 1, 1, 1, 1, 1, 1, 1, 1, 1, 1, 1, 1, 1], False), False)
sketch2.addGeometry(Part.BSplineCurve([App.Vector(36.624266, 13.412993, 0), App.Vector(36.624147, 13.366244, 0), App.Vector(36.623915, 13.275514, 0), App.Vector(36.617859, 13.143671, 0), App.Vector(36.609609, 13.0207, 0), App.Vector(36.598967, 12.906447, 0), App.Vector(36.583165, 12.801297, 0), App.Vector(36.565458, 12.704527, 0), App.Vector(36.54391, 12.61665, 0), App.Vector(36.518415, 12.537062, 0), App.Vector(36.489376, 12.464413, 0), App.Vector(36.45767, 12.396812, 0), App.Vector(36.423609, 12.33346, 0), App.Vector(36.38549, 12.274926, 0), App.Vector(36.343975, 12.22102, 0), App.Vector(36.300001, 12.170787, 0), App.Vector(36.251929, 12.12599, 0), App.Vector(36.185425, 12.072263, 0), App.Vector(36.097629, 12.016744, 0), App.Vector(35.987008, 11.968398, 0), App.Vector(35.87334, 11.938016, 0), App.Vector(35.796189, 11.934152, 0), App.Vector(35.75768, 11.932224, 0)], [4, 1, 1, 1, 1, 1, 1, 1, 1, 1, 1, 1, 1, 1, 1, 1, 1, 1, 1, 1, 4], [0, 1.459021318, 2.831673884, 4.118529203, 5.306027144, 6.411944654, 7.436330062, 8.375795394, 9.233974572, 10.042671642, 10.816086306, 11.563610507, 12.285937304, 12.993564865, 13.685989202, 14.367179055, 15.041617293, 16.353048772, 17.594441528, 18.799311195, 20], False, 3, [1, 1, 1, 1, 1, 1, 1, 1, 1, 1, 1, 1, 1, 1, 1, 1, 1, 1, 1, 1, 1, 1, 1], False), False)
sketch2.addConstraint(Sketcher.Constraint("Block", 2))
sketch2.addConstraint(Sketcher.Constraint("Block", 3))
sketch2.addConstraint(Sketcher.Constraint("Block", 4))
sketch2.addConstraint(Sketcher.Constraint("Block", 5))
sketch2.addConstraint(Sketcher.Constraint("Block", 6))
sketch2.addConstraint(Sketcher.Constraint("Block", 8))
sketch2.addConstraint(Sketcher.Constraint("Block", 9))
sketch2.addConstraint(Sketcher.Constraint("Block", 10))
sketch2.addConstraint(Sketcher.Constraint("Block", 11))
sketch2.addConstraint(Sketcher.Constraint("Block", 12))
sketch2.addConstraint(Sketcher.Constraint("Block", 13))
sketch2.addConstraint(Sketcher.Constraint("Block", 14))
sketch2.addConstraint(Sketcher.Constraint("Block", 15))
sketch2.addConstraint(Sketcher.Constraint("Block", 16))
sketch2.addConstraint(Sketcher.Constraint("Block", 17))
sketch2.addConstraint(Sketcher.Constraint("Block", 18))
sketch2.addConstraint(Sketcher.Constraint("Block", 19))
sketch2.addConstraint(Sketcher.Constraint("Block", 20))
sketch2.addConstraint(Sketcher.Constraint("Coincident", 0, 2, 1, 1))
sketch2.addConstraint(Sketcher.Constraint("Coincident", 1, 2, 2, 2))
sketch2.addConstraint(Sketcher.Constraint("Coincident", 6, 1, 7, 1))
sketch2.addConstraint(Sketcher.Constraint("Coincident", 7, 2, 0, 1))
sketch2.addConstraint(Sketcher.Constraint("Distance", 0, 0.307589))
sketch2.addConstraint(Sketcher.Constraint("DistanceX", 0, 2, 1, 2, 1.044671))
sketch2.addConstraint(Sketcher.Constraint("DistanceX", 7, 2, 1, 2, 1.286558))
sketch2.addConstraint(Sketcher.Constraint("DistanceY", 1, 2, 7, 2, 1.407151))
pocket1 = doc.addObject("PartDesign::Pocket", "Pocket")
body.addObject(pocket1)
pocket1.Profile = sketch2
pocket1.Length = 1
pocket1.Reversed = True

doc.recompute()
